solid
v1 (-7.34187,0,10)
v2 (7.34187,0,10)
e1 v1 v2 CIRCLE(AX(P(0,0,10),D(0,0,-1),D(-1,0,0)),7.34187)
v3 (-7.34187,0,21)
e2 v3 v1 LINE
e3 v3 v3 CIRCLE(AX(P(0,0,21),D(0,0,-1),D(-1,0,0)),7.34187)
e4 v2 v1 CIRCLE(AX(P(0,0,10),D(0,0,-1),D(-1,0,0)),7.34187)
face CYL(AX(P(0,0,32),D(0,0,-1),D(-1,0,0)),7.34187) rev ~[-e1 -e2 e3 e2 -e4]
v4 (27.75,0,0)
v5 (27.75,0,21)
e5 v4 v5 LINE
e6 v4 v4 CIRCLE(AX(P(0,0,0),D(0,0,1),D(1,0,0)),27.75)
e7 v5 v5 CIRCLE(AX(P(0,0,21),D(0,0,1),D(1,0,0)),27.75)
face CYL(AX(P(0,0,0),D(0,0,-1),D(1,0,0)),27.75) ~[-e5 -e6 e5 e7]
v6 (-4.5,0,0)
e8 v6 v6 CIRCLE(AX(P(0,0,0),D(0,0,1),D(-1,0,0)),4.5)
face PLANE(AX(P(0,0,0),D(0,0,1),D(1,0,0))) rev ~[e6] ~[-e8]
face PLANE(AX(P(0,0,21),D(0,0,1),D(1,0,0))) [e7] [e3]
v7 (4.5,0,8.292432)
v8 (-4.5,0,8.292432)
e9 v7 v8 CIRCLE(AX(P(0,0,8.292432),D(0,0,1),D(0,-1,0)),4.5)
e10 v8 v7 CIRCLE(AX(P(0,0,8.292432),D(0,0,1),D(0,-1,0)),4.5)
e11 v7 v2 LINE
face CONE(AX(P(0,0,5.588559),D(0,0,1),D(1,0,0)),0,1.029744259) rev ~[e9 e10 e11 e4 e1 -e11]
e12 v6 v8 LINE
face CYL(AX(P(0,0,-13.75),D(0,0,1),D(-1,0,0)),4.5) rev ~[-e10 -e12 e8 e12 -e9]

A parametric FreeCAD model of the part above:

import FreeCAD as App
import Part
import Sketcher
Q = App.Units.Quantity

doc = App.newDocument("Part")
body = doc.addObject("PartDesign::Body", "Body")

# Sketch on XY plane
sketch1 = body.newObject("Sketcher::SketchObject", "Sketch")
sketch1.AttachmentSupport = (doc.getObject("XY_Plane"), [""])
sketch1.MapMode = "FlatFace"
sketch1.addGeometry(Part.Circle(App.Vector(0, 0, 0), App.Vector(0, 0, 1), 28), False)
sketch1.addConstraint([
    Sketcher.Constraint("Coincident", 0, 3, -1, 1),
    Sketcher.Constraint("Diameter", 0, Q("55.5 mm")),
])
pad1 = body.newObject("PartDesign::Pad", "Pad")
pad1.Profile = sketch1
pad1.Length = 21

# Sketch on XY plane
sketch2 = body.newObject("Sketcher::SketchObject", "Sketch001")
sketch2.AttachmentSupport = (doc.getObject("XY_Plane"), [""])
sketch2.MapMode = "FlatFace"
sketch2.AttachmentOffset = App.Placement(App.Vector(0, 0, 21), App.Rotation())
sketch2.addGeometry(Part.Circle(App.Vector(0, 0, 0), App.Vector(0, 0, 1), 7), False)
sketch2.addConstraint([
    Sketcher.Constraint("Coincident", 0, 3, -1, 1),
    Sketcher.Constraint("Diameter", 0, Q("14.68374 mm")),
])
doc.recompute()
hole = body.newObject("PartDesign::Hole", "Hole")
hole.Profile = sketch2
hole.ThreadType = "None"
hole.Diameter = 14.68374
hole.DepthType = "Dimension"
hole.Depth = 11
hole.DrillPoint = "Angled"
hole.DrillPointAngle = 118

# Sketch on XY plane
sketch3 = body.newObject("Sketcher::SketchObject", "Sketch002")
sketch3.AttachmentSupport = (doc.getObject("XY_Plane"), [""])
sketch3.MapMode = "FlatFace"
sketch3.addGeometry(Part.Circle(App.Vector(0, 0, 0), App.Vector(0, 0, 1), 4.5), False)
sketch3.addConstraint([
    Sketcher.Constraint("Coincident", 0, 3, -1, 1),
    Sketcher.Constraint("Diameter", 0, Q("9 mm")),
])
doc.recompute()
hole2 = body.newObject("PartDesign::Hole", "Hole001")
hole2.Profile = sketch3
hole2.ThreadType = "None"
hole2.Diameter = 9
hole2.DepthType = "Dimension"
hole2.Depth = 13.75
hole2.DrillPoint = "Angled"
hole2.DrillPointAngle = 118
hole2.Reversed = True

doc.recompute()
